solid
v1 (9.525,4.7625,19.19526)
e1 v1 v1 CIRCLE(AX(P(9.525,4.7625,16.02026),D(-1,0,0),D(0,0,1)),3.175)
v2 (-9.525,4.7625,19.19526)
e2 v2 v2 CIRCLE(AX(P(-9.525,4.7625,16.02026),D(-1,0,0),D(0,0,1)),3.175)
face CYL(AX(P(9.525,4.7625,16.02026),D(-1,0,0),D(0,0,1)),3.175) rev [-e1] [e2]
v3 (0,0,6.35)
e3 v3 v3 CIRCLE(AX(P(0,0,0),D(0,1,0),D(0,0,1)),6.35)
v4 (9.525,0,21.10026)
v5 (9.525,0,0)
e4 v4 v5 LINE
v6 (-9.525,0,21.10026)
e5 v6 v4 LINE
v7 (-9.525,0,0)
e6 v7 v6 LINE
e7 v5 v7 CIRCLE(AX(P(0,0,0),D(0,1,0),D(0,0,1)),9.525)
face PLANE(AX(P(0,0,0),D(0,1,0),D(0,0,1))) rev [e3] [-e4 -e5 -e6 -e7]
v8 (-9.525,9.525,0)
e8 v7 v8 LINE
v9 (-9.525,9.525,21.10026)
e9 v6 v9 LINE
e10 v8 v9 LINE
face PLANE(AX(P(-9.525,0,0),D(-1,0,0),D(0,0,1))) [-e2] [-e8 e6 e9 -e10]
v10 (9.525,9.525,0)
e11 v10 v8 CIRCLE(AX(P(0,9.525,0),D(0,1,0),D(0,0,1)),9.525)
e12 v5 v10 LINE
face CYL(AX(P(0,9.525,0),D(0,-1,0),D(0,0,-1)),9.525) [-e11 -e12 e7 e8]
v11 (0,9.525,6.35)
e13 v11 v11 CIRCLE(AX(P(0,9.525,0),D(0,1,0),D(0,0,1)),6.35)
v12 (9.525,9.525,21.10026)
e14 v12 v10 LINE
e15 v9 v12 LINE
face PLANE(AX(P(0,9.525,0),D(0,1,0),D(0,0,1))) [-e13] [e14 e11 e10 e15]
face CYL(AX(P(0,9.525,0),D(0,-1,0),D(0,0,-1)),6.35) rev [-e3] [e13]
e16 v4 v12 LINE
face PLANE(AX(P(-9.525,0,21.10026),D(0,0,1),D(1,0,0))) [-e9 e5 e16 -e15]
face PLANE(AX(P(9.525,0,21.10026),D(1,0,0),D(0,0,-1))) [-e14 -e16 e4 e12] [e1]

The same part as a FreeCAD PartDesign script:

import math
import FreeCAD as App
import Part
import Sketcher
Q = App.Units.Quantity

doc = App.newDocument("Part")
params = doc.addObject("Spreadsheet::Sheet", "Params")
for row, (alias, value) in enumerate([
    ("sketch1_diameter", "0.5 in"),
    ("sketch1_diameter2", "0.75 in"),
    ("pad1_length", "0.375 in"),
    ("sketch2_radius", "0.375 in"),
    ("pad2_length", "0.375 in"),
    ("sketch3_diameter", "0.25 in"),
], start=1):
    params.set(f"A{row}", alias)
    params.set(f"B{row}", "=" + value)
    params.setAlias(f"B{row}", alias)

body = doc.addObject("PartDesign::Body", "Body")

# Sketch on XZ plane
sketch1 = body.newObject("Sketcher::SketchObject", "Sketch")
sketch1.AttachmentSupport = (doc.getObject("XZ_Plane"), [""])
sketch1.MapMode = "FlatFace"
sketch1.addGeometry(Part.Circle(App.Vector(0, 0, 0), App.Vector(0, 0, 1), 10), False)
sketch1.addGeometry(Part.Circle(App.Vector(0, 0, 0), App.Vector(0, 0, 1), 6), False)
sketch1.addConstraint(Sketcher.Constraint("Coincident", 0, 3, -1, 1))
sketch1.addConstraint(Sketcher.Constraint("Coincident", 1, 3, -1, 1))
sketch1.addConstraint(Sketcher.Constraint("Diameter", 1, Q("0.5 in")))
sketch1.addConstraint(Sketcher.Constraint("Diameter", 0, Q("0.75 in")))
sketch1.setExpression("Constraints[2]", "Params.sketch1_diameter")
sketch1.setExpression("Constraints[3]", "Params.sketch1_diameter2")
pad1 = body.newObject("PartDesign::Pad", "Pad")
pad1.Profile = sketch1
pad1.setExpression("Length", "Params.pad1_length")
pad1.Reversed = True

# Sketch on XZ plane
sketch2 = body.newObject("Sketcher::SketchObject", "Sketch001")
sketch2.AttachmentSupport = (doc.getObject("XZ_Plane"), [""])
sketch2.MapMode = "FlatFace"
sketch2.AttachmentOffset = App.Placement(App.Vector(0, 0, -0.375 * 25.4), App.Rotation())
sketch2.addGeometry(Part.LineSegment(App.Vector(-10, 0, 0), App.Vector(-10, 21, 0)), False)
sketch2.addGeometry(Part.LineSegment(App.Vector(-10, 21, 0), App.Vector(10, 21, 0)), False)
sketch2.addGeometry(Part.LineSegment(App.Vector(10, 21, 0), App.Vector(10, 0, 0)), False)
sketch2.addGeometry(Part.ArcOfCircle(Part.Circle(App.Vector(0, 0, 0), App.Vector(0, 0, 1), 10), math.radians(0), math.radians(180)), False)
sketch2.addConstraint(Sketcher.Constraint("Coincident", 0, 2, 1, 1))
sketch2.addConstraint(Sketcher.Constraint("Coincident", 1, 2, 2, 1))
sketch2.addConstraint(Sketcher.Constraint("Tangent", 2, 2, 3, 1))
sketch2.addConstraint(Sketcher.Constraint("Tangent", 3, 2, 0, 1))
sketch2.addConstraint(Sketcher.Constraint("Vertical", 0))
sketch2.addConstraint(Sketcher.Constraint("Horizontal", 1))
sketch2.addConstraint(Sketcher.Constraint("Vertical", 2))
sketch2.addConstraint(Sketcher.Constraint("Coincident", 3, 3, -1, 1))
sketch2.addConstraint(Sketcher.Constraint("Radius", 3, Q("0.375 in")))
sketch2.addConstraint(Sketcher.Constraint("DistanceY", 0, 1, 0, 2, 21.10026))
sketch2.setExpression("Constraints[8]", "Params.sketch2_radius")
pad2 = body.newObject("PartDesign::Pad", "Pad001")
pad2.Profile = sketch2
pad2.setExpression("Length", "Params.pad2_length")

# Sketch on YZ plane
sketch3 = body.newObject("Sketcher::SketchObject", "Sketch002")
sketch3.AttachmentSupport = (doc.getObject("YZ_Plane"), [""])
sketch3.MapMode = "FlatFace"
sketch3.AttachmentOffset = App.Placement(App.Vector(0, 0, -0.375 * 25.4), App.Rotation())
sketch3.addGeometry(Part.Circle(App.Vector(4.8, 16, 0), App.Vector(0, 0, 1), 3.2), False)
sketch3.addConstraint(Sketcher.Constraint("Diameter", 0, Q("0.25 in")))
sketch3.addConstraint(Sketcher.Constraint("DistanceX", -1, 1, 0, 3, Q("0.1875 in")))
sketch3.addConstraint(Sketcher.Constraint("DistanceY", -1, 1, 0, 3, 16.02026))
sketch3.setExpression("Constraints[0]", "Params.sketch3_diameter")
pocket1 = body.newObject("PartDesign::Pocket", "Pocket")
pocket1.Profile = sketch3
pocket1.Type = "ThroughAll"
pocket1.Reversed = True

doc.recompute()
